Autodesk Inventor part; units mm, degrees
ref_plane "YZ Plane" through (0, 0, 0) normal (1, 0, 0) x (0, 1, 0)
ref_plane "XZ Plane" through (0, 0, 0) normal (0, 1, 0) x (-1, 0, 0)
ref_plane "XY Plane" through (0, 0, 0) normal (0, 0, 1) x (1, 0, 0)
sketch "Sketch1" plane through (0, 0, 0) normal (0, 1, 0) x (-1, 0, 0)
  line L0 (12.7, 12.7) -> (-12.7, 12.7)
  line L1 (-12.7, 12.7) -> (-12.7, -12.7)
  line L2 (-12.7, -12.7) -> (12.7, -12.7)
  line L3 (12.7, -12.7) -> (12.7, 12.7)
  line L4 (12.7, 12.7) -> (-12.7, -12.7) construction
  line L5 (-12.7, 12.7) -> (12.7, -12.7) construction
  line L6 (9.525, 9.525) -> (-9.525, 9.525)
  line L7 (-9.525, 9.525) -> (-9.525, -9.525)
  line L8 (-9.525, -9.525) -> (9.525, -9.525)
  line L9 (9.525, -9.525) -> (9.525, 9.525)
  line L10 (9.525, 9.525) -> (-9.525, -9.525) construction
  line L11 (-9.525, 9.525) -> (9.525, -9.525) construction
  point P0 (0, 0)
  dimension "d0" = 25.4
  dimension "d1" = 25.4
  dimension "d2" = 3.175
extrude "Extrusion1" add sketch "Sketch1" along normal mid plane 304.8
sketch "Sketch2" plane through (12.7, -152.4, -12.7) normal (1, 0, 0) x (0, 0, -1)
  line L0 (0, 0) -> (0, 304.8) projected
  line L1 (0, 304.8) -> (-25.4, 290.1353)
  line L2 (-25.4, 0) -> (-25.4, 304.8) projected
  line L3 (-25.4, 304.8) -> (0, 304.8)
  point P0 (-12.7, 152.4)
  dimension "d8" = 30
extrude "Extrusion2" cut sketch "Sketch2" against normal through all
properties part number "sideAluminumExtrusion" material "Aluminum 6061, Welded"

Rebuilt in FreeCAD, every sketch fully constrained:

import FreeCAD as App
import Part
import Sketcher
from FreeCAD import Vector
Q = App.Units.Quantity

doc = App.newDocument("Part")
params = doc.addObject("Spreadsheet::Sheet", "Params")
for row, (alias, value) in enumerate([
    ("sketch1_width", "1 in"),
    ("pad1_length", "12 in"),
    ("sketch2_height", "1 in"),
], start=1):
    params.set(f"A{row}", alias)
    params.set(f"B{row}", "=" + value)
    params.setAlias(f"B{row}", alias)

body = doc.addObject("PartDesign::Body", "Body")

sketch1 = body.newObject("Sketcher::SketchObject", "Sketch")
sketch1.AttachmentSupport = (doc.getObject("XZ_Plane"), [""])
sketch1.MapMode = "FlatFace"
sketch1.addGeometry(Part.LineSegment(Vector(-13, -13, 0), Vector(-13, 13, 0)), False)
sketch1.addGeometry(Part.LineSegment(Vector(-13, 13, 0), Vector(13, 13, 0)), False)
sketch1.addGeometry(Part.LineSegment(Vector(13, 13, 0), Vector(13, -13, 0)), False)
sketch1.addGeometry(Part.LineSegment(Vector(13, -13, 0), Vector(-13, -13, 0)), False)
sketch1.addGeometry(Part.LineSegment(Vector(10, 10, 0), Vector(-10, 10, 0)), False)
sketch1.addGeometry(Part.LineSegment(Vector(-10, 10, 0), Vector(-10, -10, 0)), False)
sketch1.addGeometry(Part.LineSegment(Vector(-10, -10, 0), Vector(10, -10, 0)), False)
sketch1.addGeometry(Part.LineSegment(Vector(10, -10, 0), Vector(10, 10, 0)), False)
sketch1.addConstraint(Sketcher.Constraint("Coincident", 0, 2, 1, 1))
sketch1.addConstraint(Sketcher.Constraint("Coincident", 1, 2, 2, 1))
sketch1.addConstraint(Sketcher.Constraint("Coincident", 2, 2, 3, 1))
sketch1.addConstraint(Sketcher.Constraint("Coincident", 3, 2, 0, 1))
sketch1.addConstraint(Sketcher.Constraint("Coincident", 4, 2, 5, 1))
sketch1.addConstraint(Sketcher.Constraint("Coincident", 5, 2, 6, 1))
sketch1.addConstraint(Sketcher.Constraint("Coincident", 6, 2, 7, 1))
sketch1.addConstraint(Sketcher.Constraint("Coincident", 7, 2, 4, 1))
sketch1.addConstraint(Sketcher.Constraint("Vertical", 0))
sketch1.addConstraint(Sketcher.Constraint("Horizontal", 1))
sketch1.addConstraint(Sketcher.Constraint("Vertical", 2))
sketch1.addConstraint(Sketcher.Constraint("Horizontal", 3))
sketch1.addConstraint(Sketcher.Constraint("Horizontal", 4))
sketch1.addConstraint(Sketcher.Constraint("Vertical", 5))
sketch1.addConstraint(Sketcher.Constraint("Horizontal", 6))
sketch1.addConstraint(Sketcher.Constraint("Vertical", 7))
sketch1.addConstraint(Sketcher.Constraint("Symmetric", 0, 2, 2, 2, -1, 1))
sketch1.addConstraint(Sketcher.Constraint("Symmetric", 4, 2, 6, 2, -1, 1))
sketch1.addConstraint(Sketcher.Constraint("Equal", 3, 0))
sketch1.addConstraint(Sketcher.Constraint("Equal", 6, 5))
sketch1.addConstraint(Sketcher.Constraint("DistanceX", 1, 1, 1, 2, Q("1 in")))
sketch1.addConstraint(Sketcher.Constraint("DistanceX", 0, 2, 4, 2, Q("0.125 in")))
sketch1.setExpression("Constraints[20]", "Params.sketch1_width")
pad1 = body.newObject("PartDesign::Pad", "Pad")
pad1.Profile = sketch1
pad1.setExpression("Length", "Params.pad1_length")
pad1.Midplane = True

sketch2 = body.newObject("Sketcher::SketchObject", "Sketch001")
sketch2.AttachmentSupport = (doc.getObject("YZ_Plane"), [""])
sketch2.MapMode = "FlatFace"
sketch2.AttachmentOffset = App.Placement(Vector(0, 0, 0.5 * 25.4), App.Rotation())
sketch2.addGeometry(Part.LineSegment(Vector(138, 13, 0), Vector(152, -13, 0)), False)
sketch2.addGeometry(Part.LineSegment(Vector(152, -13, 0), Vector(152, 13, 0)), False)
sketch2.addGeometry(Part.LineSegment(Vector(152, 13, 0), Vector(138, 13, 0)), False)
sketch2.addConstraint(Sketcher.Constraint("Coincident", 0, 2, 1, 1))
sketch2.addConstraint(Sketcher.Constraint("Coincident", 1, 2, 2, 1))
sketch2.addConstraint(Sketcher.Constraint("Coincident", 2, 2, 0, 1))
sketch2.addConstraint(Sketcher.Constraint("Vertical", 1))
sketch2.addConstraint(Sketcher.Constraint("Horizontal", 2))
sketch2.addConstraint(Sketcher.Constraint("DistanceY", 1, 1, 1, 2, Q("1 in")))
sketch2.addConstraint(Sketcher.Constraint("DistanceX", -1, 1, 0, 2, Q("6 in")))
sketch2.addConstraint(Sketcher.Constraint("Angle", 0, Q("-60 deg")))
sketch2.addConstraint(Sketcher.Constraint("DistanceY", 0, 2, -1, 1, Q("0.5 in")))
sketch2.setExpression("Constraints[5]", "Params.sketch2_height")
pocket1 = body.newObject("PartDesign::Pocket", "Pocket")
pocket1.Profile = sketch2
pocket1.Type = "ThroughAll"

doc.recompute()
